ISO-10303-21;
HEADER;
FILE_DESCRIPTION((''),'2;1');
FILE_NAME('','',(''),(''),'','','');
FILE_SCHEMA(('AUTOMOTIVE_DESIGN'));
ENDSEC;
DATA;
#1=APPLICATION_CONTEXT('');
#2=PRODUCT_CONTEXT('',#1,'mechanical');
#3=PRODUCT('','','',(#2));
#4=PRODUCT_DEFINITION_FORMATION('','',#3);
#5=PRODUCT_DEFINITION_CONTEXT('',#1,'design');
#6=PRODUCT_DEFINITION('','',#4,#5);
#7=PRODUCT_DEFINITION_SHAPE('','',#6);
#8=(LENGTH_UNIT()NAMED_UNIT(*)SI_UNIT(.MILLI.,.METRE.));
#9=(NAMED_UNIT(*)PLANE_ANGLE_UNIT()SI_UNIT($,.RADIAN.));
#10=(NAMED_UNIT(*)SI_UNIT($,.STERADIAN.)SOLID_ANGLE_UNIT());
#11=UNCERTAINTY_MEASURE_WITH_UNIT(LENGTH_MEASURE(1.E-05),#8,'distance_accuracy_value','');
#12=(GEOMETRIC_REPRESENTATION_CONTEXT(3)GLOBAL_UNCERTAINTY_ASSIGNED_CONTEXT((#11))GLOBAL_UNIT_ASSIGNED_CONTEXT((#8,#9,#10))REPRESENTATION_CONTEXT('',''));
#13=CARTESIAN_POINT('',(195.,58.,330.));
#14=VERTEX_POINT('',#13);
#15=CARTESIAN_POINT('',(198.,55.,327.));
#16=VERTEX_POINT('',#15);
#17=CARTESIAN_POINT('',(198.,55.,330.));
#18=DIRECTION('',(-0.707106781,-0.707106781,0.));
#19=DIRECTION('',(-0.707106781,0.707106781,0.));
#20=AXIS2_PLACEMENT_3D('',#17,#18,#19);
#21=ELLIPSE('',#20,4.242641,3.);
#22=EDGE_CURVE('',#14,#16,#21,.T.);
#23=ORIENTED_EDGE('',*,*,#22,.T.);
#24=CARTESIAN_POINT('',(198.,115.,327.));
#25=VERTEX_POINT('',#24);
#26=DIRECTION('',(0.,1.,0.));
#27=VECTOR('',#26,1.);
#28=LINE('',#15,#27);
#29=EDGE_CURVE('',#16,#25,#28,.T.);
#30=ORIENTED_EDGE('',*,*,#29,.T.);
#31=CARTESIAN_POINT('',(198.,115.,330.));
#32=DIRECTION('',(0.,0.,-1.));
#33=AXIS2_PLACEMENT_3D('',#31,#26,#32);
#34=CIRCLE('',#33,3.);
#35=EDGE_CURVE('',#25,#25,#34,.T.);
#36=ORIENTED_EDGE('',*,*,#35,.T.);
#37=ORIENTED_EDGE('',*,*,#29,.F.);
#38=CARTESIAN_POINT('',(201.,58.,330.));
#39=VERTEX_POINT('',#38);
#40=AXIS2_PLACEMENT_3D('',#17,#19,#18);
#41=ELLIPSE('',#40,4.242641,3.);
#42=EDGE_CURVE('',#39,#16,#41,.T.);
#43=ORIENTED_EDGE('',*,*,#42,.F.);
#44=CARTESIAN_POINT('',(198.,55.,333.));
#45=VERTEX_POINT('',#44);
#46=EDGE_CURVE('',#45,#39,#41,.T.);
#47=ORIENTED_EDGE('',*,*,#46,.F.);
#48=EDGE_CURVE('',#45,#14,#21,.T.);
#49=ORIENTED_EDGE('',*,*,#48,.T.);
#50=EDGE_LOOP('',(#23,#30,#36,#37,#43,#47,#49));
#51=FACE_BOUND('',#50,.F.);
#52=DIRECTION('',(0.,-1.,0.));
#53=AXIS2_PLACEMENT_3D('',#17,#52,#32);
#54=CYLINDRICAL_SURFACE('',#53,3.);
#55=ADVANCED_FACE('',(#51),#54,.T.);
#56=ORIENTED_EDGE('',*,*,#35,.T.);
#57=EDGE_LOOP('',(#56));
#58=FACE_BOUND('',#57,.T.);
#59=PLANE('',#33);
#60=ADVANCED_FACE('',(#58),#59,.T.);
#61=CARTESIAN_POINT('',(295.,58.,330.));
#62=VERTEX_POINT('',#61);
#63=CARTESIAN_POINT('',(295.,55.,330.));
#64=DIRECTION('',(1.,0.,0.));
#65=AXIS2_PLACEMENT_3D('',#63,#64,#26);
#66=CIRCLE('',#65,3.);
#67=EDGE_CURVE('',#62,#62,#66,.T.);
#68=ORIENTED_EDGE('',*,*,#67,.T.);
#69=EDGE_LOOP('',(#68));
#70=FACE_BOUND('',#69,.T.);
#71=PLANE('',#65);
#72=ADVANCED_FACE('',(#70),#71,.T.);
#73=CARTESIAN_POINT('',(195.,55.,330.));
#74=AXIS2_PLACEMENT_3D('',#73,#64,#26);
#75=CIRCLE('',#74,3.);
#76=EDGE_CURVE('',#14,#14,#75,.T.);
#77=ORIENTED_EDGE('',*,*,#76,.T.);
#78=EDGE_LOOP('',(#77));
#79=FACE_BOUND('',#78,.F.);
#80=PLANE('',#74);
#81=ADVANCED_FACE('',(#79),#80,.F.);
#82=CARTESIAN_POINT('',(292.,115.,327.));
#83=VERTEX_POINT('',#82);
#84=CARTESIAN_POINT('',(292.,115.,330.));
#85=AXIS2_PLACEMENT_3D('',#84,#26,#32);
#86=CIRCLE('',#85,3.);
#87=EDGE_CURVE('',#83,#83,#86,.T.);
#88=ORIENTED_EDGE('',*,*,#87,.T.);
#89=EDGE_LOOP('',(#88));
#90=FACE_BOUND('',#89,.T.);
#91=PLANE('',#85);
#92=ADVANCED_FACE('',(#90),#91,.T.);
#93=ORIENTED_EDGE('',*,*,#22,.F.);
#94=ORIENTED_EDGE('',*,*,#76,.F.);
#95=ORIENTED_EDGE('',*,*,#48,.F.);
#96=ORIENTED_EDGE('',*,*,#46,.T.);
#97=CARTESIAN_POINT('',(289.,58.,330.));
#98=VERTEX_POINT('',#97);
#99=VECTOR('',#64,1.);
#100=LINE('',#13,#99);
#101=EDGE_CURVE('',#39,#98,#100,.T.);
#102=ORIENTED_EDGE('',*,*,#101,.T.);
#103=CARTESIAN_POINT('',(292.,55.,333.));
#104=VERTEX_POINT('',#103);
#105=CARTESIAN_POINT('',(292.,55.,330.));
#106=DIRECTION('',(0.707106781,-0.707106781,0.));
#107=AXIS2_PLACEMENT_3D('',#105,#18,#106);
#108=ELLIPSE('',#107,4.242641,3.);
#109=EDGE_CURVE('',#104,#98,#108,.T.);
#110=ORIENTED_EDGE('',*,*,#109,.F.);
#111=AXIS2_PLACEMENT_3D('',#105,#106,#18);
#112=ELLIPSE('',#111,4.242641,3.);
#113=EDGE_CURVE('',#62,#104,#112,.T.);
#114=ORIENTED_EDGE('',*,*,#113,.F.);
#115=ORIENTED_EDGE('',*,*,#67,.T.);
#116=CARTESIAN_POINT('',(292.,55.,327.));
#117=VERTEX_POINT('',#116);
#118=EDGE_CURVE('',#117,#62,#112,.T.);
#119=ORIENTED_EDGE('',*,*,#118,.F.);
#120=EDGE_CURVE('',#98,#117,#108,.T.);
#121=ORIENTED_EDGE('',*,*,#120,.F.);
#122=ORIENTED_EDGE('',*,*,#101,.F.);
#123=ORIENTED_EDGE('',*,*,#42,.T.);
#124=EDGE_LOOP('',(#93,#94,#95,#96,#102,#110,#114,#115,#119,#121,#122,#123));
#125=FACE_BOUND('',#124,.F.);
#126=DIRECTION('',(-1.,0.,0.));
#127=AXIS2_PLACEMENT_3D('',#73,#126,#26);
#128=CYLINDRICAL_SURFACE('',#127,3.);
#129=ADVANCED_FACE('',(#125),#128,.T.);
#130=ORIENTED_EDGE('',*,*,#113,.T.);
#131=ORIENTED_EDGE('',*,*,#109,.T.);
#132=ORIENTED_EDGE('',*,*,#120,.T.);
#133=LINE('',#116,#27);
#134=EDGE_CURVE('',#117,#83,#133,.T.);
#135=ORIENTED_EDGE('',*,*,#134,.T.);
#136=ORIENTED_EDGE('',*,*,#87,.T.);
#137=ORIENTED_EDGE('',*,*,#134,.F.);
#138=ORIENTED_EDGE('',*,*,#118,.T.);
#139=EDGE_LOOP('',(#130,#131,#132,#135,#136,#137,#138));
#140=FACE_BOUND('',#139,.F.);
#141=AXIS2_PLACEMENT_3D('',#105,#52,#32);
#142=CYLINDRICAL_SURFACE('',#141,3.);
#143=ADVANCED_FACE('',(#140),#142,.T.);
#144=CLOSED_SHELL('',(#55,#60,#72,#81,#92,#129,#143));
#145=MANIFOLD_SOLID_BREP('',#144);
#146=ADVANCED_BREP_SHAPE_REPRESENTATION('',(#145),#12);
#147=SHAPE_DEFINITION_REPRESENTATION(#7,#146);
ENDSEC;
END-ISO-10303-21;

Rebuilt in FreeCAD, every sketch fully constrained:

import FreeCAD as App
import Part
import Sketcher

V = App.Vector
Q = App.Units.Quantity

doc = App.newDocument("Part")
body = doc.addObject("PartDesign::Body", "Body")

# Sketch on XY plane
sketch1 = body.newObject("Sketcher::SketchObject", "Sketch")
sketch1.AttachmentSupport = (doc.getObject("XY_Plane"), [""])
sketch1.MapMode = "FlatFace"
sketch1.addGeometry(Part.Circle(V(0, 0, 0), V(0, 0, 1), 3), False)
sketch1.addConstraint(Sketcher.Constraint("Coincident", 0, 3, -1, 1))
sketch1.addConstraint(Sketcher.Constraint("Diameter", 0, Q("6 mm")))
pad1 = body.newObject("PartDesign::Pad", "Pad")
pad1.Profile = sketch1
pad1.Length = 60
body2 = doc.addObject("PartDesign::Body", "Body001")
doc.recompute()

body.Placement = App.Placement(V(0, 0, 0), App.Rotation(V(0, 1, 0), 90))
boolean = body2.newObject("PartDesign::Boolean", "Boolean")
boolean.Type = "Fuse"
boolean.addObjects([body])
body3 = doc.addObject("PartDesign::Body", "Body002")
doc.recompute()

body2.Placement = App.Placement(V(-50, -3, 0), App.Rotation(V(0, 0, 1), 0))
boolean2 = body3.newObject("PartDesign::Boolean", "Boolean001")
boolean2.Type = "Fuse"
boolean2.addObjects([body2])
body4 = doc.addObject("PartDesign::Body", "Body003")

# Sketch on XY plane
sketch2 = body4.newObject("Sketcher::SketchObject", "Sketch001")
sketch2.AttachmentSupport = (doc.getObject("XY_Plane003"), [""])
sketch2.MapMode = "FlatFace"
sketch2.addGeometry(Part.Circle(V(0, 0, 0), V(0, 0, 1), 3), False)
sketch2.addConstraint(Sketcher.Constraint("Coincident", 0, 3, -1, 1))
sketch2.addConstraint(Sketcher.Constraint("Diameter", 0, Q("6 mm")))
pad2 = body4.newObject("PartDesign::Pad", "Pad001")
pad2.Profile = sketch2
pad2.Length = 100
body5 = doc.addObject("PartDesign::Body", "Body004")
doc.recompute()

body4.Placement = App.Placement(V(0, 0, 0), App.Rotation(V(1, 0, 0), 90))
boolean3 = body5.newObject("PartDesign::Boolean", "Boolean002")
boolean3.Type = "Fuse"
boolean3.addObjects([body4])
body6 = doc.addObject("PartDesign::Body", "Body005")
doc.recompute()

body5.Placement = App.Placement(V(-50, 0, 0), App.Rotation(V(0, 0, 1), 0))
boolean4 = body6.newObject("PartDesign::Boolean", "Boolean003")
boolean4.Type = "Fuse"
boolean4.addObjects([body5])
doc.recompute()

boolean5 = body6.newObject("PartDesign::Boolean", "Boolean004")
boolean5.Type = "Fuse"
boolean5.addObjects([body3])
body7 = doc.addObject("PartDesign::Body", "Body006")

# Sketch on XY plane
sketch3 = body7.newObject("Sketcher::SketchObject", "Sketch002")
sketch3.AttachmentSupport = (doc.getObject("XY_Plane006"), [""])
sketch3.MapMode = "FlatFace"
sketch3.addGeometry(Part.Circle(V(0, 0, 0), V(0, 0, 1), 3), False)
sketch3.addConstraint(Sketcher.Constraint("Coincident", 0, 3, -1, 1))
sketch3.addConstraint(Sketcher.Constraint("Diameter", 0, Q("6 mm")))
pad3 = body7.newObject("PartDesign::Pad", "Pad002")
pad3.Profile = sketch3
pad3.Length = 60
body8 = doc.addObject("PartDesign::Body", "Body007")
doc.recompute()

body7.Placement = App.Placement(V(0, 0, 0), App.Rotation(V(0, 1, 0), 90))
boolean6 = body8.newObject("PartDesign::Boolean", "Boolean005")
boolean6.Type = "Fuse"
boolean6.addObjects([body7])
body9 = doc.addObject("PartDesign::Body", "Body008")
doc.recompute()

body8.Placement = App.Placement(V(-50, -97, 0), App.Rotation(V(0, 0, 1), 0))
boolean7 = body9.newObject("PartDesign::Boolean", "Boolean006")
boolean7.Type = "Fuse"
boolean7.addObjects([body8])
doc.recompute()

boolean8 = body9.newObject("PartDesign::Boolean", "Boolean007")
boolean8.Type = "Fuse"
boolean8.addObjects([body6])
body10 = doc.addObject("PartDesign::Body", "Body009")
doc.recompute()

body9.Placement = App.Placement(V(195, 105, 330), App.Rotation(V(0, 0, 1), 90))
boolean9 = body10.newObject("PartDesign::Boolean", "Boolean008")
boolean9.Type = "Fuse"
boolean9.addObjects([body9])

doc.recompute()
